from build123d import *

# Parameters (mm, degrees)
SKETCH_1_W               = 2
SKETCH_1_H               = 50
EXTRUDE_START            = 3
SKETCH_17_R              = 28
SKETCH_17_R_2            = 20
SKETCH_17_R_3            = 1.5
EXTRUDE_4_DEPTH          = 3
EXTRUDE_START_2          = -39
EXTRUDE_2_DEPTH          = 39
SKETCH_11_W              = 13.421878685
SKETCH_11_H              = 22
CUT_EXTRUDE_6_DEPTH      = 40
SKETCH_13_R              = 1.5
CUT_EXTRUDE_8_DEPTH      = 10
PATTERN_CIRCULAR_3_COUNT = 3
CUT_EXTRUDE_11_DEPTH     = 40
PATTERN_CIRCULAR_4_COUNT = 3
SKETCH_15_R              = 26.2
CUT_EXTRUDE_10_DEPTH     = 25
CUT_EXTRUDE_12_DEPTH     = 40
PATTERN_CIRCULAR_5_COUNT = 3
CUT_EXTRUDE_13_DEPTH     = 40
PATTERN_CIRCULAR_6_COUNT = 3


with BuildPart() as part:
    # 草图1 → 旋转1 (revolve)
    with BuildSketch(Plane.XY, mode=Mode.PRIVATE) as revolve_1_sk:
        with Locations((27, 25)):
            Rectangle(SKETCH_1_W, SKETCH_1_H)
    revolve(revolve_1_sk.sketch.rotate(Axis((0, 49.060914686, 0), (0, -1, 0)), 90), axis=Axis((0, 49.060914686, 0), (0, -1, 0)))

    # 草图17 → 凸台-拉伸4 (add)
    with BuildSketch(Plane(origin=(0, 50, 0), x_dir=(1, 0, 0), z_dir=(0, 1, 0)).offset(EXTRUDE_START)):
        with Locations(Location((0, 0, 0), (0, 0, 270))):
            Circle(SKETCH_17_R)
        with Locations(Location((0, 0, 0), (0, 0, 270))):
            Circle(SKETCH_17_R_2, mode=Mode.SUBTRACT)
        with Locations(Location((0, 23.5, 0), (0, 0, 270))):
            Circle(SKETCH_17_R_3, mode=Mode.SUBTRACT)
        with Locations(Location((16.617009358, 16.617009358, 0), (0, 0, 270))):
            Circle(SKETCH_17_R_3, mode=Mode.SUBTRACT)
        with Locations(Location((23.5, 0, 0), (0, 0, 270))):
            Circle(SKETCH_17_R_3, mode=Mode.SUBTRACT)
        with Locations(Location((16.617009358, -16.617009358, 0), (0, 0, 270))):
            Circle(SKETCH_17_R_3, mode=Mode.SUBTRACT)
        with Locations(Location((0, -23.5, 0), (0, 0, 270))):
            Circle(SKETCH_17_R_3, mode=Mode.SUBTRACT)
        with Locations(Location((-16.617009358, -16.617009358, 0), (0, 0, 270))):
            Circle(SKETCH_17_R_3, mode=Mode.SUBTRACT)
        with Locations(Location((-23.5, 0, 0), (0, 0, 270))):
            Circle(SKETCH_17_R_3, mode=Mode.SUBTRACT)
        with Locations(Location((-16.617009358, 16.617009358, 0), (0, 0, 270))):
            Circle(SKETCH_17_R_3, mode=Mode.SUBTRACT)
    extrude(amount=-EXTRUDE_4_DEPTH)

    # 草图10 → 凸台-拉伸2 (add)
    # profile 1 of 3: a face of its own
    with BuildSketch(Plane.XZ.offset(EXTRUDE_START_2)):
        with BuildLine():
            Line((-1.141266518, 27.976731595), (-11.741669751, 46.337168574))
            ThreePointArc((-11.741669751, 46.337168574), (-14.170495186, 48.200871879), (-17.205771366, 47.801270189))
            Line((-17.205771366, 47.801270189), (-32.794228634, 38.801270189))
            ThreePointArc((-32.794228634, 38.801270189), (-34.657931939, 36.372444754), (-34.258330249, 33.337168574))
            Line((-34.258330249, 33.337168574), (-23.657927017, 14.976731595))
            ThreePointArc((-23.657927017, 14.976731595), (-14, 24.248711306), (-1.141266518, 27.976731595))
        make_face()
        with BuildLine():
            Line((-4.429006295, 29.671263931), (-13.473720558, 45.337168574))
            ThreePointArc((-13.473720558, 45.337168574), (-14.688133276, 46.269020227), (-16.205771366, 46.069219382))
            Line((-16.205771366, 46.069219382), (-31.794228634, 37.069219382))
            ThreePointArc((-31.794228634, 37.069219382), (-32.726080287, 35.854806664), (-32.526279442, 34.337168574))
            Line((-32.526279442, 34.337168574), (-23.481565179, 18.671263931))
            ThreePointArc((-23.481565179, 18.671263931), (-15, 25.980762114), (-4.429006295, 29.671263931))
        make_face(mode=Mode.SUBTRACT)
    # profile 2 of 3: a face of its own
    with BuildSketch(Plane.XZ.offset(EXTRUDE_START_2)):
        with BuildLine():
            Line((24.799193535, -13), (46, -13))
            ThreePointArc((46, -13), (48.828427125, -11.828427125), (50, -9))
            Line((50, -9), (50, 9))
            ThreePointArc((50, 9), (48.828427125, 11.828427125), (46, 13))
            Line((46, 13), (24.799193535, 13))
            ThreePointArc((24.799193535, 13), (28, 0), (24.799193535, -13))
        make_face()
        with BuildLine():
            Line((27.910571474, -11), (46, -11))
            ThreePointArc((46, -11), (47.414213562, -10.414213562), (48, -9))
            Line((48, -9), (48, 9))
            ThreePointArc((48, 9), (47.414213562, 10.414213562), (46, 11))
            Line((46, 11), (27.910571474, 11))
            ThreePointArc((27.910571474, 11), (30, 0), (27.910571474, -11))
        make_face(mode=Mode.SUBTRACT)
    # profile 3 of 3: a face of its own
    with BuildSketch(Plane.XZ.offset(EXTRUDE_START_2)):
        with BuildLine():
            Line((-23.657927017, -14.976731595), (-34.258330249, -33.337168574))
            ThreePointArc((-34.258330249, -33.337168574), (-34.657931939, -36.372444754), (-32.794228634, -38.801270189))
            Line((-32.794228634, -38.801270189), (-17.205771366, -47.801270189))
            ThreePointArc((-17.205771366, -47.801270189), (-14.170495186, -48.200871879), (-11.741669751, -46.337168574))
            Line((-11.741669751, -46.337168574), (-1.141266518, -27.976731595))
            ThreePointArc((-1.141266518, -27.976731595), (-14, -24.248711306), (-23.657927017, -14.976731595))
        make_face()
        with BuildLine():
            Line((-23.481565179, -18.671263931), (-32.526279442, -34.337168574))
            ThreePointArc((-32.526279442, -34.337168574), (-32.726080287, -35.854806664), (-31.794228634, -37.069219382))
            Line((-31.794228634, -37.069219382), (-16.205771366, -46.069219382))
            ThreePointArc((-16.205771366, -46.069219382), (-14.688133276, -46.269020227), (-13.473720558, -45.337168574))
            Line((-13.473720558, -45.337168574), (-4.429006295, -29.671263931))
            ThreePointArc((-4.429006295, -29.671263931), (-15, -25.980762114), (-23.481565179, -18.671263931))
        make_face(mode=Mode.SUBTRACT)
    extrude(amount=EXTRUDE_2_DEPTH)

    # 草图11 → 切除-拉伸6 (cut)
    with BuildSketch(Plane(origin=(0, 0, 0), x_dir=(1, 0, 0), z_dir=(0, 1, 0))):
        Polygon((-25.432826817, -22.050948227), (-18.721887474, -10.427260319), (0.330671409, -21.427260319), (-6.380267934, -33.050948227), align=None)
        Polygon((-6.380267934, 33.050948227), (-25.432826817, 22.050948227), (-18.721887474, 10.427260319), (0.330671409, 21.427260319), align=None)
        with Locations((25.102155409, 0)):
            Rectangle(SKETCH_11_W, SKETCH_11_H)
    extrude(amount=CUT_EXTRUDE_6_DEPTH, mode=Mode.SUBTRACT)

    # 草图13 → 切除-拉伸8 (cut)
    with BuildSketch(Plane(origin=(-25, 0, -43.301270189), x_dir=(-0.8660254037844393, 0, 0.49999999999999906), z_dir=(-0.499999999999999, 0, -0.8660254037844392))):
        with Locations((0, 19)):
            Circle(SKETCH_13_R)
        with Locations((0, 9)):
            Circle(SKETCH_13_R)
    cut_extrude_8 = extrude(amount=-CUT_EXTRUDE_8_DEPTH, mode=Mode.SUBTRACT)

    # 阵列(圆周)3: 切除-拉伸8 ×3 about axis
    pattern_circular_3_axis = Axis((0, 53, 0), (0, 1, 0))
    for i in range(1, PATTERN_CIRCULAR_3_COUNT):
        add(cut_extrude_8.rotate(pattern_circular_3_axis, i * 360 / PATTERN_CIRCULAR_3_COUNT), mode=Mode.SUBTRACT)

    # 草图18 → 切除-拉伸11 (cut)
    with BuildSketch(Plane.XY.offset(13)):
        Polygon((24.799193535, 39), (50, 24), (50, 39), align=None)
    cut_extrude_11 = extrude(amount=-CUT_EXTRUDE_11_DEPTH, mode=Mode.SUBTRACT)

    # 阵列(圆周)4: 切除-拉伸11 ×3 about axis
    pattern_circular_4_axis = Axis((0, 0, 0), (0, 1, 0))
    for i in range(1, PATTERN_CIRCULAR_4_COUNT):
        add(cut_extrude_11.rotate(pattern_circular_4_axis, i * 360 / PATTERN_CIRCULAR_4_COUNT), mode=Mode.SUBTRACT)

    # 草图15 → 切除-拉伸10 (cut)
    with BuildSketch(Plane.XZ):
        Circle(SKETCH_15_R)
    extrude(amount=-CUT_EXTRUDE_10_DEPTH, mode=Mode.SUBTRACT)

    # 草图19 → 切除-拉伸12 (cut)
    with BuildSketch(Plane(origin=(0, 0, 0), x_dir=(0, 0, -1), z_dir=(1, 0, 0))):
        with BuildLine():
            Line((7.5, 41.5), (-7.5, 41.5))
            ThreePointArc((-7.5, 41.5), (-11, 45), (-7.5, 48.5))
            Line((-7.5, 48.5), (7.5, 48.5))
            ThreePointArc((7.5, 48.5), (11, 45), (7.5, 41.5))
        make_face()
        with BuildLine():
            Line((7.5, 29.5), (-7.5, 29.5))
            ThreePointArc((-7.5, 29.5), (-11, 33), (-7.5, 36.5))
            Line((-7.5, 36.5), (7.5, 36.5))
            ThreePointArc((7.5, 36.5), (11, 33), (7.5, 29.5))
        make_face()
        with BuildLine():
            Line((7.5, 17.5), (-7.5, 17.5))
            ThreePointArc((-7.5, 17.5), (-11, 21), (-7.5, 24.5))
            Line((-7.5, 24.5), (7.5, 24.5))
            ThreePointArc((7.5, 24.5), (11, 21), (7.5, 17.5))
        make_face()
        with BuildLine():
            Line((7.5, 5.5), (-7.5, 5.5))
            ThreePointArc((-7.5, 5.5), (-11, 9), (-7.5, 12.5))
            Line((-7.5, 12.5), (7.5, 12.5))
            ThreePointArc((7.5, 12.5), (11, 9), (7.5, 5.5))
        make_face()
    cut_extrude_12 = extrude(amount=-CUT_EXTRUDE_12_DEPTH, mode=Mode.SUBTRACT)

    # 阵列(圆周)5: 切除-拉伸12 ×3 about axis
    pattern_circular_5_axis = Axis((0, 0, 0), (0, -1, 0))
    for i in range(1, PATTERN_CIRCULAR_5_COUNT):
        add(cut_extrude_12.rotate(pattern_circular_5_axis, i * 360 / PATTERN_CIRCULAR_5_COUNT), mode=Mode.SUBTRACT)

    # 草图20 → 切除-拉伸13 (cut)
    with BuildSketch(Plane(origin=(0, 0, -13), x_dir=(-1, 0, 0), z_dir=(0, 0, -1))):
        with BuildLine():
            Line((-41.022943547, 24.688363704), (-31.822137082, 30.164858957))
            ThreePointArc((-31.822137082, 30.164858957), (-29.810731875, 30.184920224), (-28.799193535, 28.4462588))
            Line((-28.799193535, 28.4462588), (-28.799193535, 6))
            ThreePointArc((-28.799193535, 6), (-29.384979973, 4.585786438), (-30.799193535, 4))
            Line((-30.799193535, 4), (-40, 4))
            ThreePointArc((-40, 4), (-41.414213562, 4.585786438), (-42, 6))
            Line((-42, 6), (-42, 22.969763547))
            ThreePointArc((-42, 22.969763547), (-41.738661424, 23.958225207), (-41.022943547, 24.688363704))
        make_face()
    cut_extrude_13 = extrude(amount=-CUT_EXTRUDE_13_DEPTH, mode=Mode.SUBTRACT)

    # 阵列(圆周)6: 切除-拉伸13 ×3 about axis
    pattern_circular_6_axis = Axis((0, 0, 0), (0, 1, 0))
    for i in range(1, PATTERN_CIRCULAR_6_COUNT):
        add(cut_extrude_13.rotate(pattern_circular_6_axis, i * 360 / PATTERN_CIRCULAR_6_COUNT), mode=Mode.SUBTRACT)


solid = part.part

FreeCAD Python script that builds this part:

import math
import FreeCAD as App
import Part
import Sketcher
from FreeCAD import Vector
Q = App.Units.Quantity


def add_polygon(sketch, points):
    """Adds a closed chain of lines whose ends are joined by coincident constraints."""
    first, n = sketch.GeometryCount, len(points)
    for a, b in zip(points, points[1:] + points[:1]):
        sketch.addGeometry(Part.LineSegment(App.Vector(*a, 0), App.Vector(*b, 0)), False)
    for i in range(n):
        sketch.addConstraint(Sketcher.Constraint("Coincident", first + i, 2, first + (i + 1) % n, 1))

doc = App.newDocument("Part")
body = doc.addObject("PartDesign::Body", "Body")

# Sketch on XY plane
sketch1 = doc.addObject("Sketcher::SketchObject", "Sketch")
body.addObject(sketch1)
sketch1.AttachmentSupport = (doc.XY_Plane, [""])
sketch1.MapMode = "FlatFace"
add_polygon(sketch1, [(26, 50), (26, 0), (28, 0), (28, 50)])  # lines 0-3
sketch1.addConstraint([
    Sketcher.Constraint("Vertical", 0),
    Sketcher.Constraint("Horizontal", 1),
    Sketcher.Constraint("Vertical", 2),
    Sketcher.Constraint("Horizontal", 3),
    Sketcher.Constraint("PointOnObject", 0, 2, -1),
    Sketcher.Constraint("DistanceX", 1, 1, 1, 2, 2.0),
    Sketcher.Constraint("DistanceY", 0, 2, 0, 1, 50.0),
    Sketcher.Constraint("DistanceX", -1, 1, 0, 2, 26.0),
])
revolution = doc.addObject("PartDesign::Revolution", "Revolution")
body.addObject(revolution)
revolution.Profile = sketch1
revolution.ReferenceAxis = (sketch1, ["V_Axis"])
revolution.Angle = 360

# Sketch on XZ plane
sketch2 = doc.addObject("Sketcher::SketchObject", "Sketch001")
body.addObject(sketch2)
sketch2.AttachmentSupport = (doc.XZ_Plane, [""])
sketch2.MapMode = "FlatFace"
sketch2.AttachmentOffset = App.Placement(Vector(0, 0, -53), App.Rotation())
sketch2.addGeometry([
    Part.Circle(Vector(0, 0, 0), Vector(0, 0, 1), 28),  # 0
    Part.Circle(Vector(-16.617009, -16.617009, 0), Vector(0, 0, 1), 1.5),  # 1
    Part.Circle(Vector(0, -23.5, 0), Vector(0, 0, 1), 1.5),  # 2
    Part.Circle(Vector(-23.5, 0, 0), Vector(0, 0, 1), 1.5),  # 3
    Part.Circle(Vector(-16.617009, 16.617009, 0), Vector(0, 0, 1), 1.5),  # 4
    Part.Circle(Vector(16.617009, -16.617009, 0), Vector(0, 0, 1), 1.5),  # 5
    Part.Circle(Vector(23.5, 0, 0), Vector(0, 0, 1), 1.5),  # 6
    Part.Circle(Vector(0, 0, 0), Vector(0, 0, 1), 20),  # 7
    Part.Circle(Vector(0, 23.5, 0), Vector(0, 0, 1), 1.5),  # 8
    Part.Circle(Vector(16.617009, 16.617009, 0), Vector(0, 0, 1), 1.5),  # 9
], False)
sketch2.addConstraint([
    Sketcher.Constraint("Coincident", 0, 3, -1, 1),
    Sketcher.Constraint("Coincident", 7, 3, -1, 1),
    Sketcher.Constraint("Equal", 1, 2),
    Sketcher.Constraint("Equal", 2, 3),
    Sketcher.Constraint("Equal", 3, 4),
    Sketcher.Constraint("Equal", 4, 5),
    Sketcher.Constraint("Equal", 5, 6),
    Sketcher.Constraint("Equal", 6, 8),
    Sketcher.Constraint("Equal", 8, 9),
    Sketcher.Constraint("Symmetric", 4, 3, 5, 3, -1, 1),
    Sketcher.Constraint("Symmetric", 3, 3, 6, 3, -1, 1),
    Sketcher.Constraint("Symmetric", 2, 3, 8, 3, -1, 1),
    Sketcher.Constraint("Symmetric", 1, 3, 9, 3, -1, 1),
    Sketcher.Constraint("Symmetric", 1, 3, 5, 3, -2),
    Sketcher.Constraint("PointOnObject", 2, 3, -2),
    Sketcher.Constraint("PointOnObject", 3, 3, -1),
    Sketcher.Constraint("Diameter", 0, 56.0),
    Sketcher.Constraint("Diameter", 1, 3.0),
    Sketcher.Constraint("Diameter", 7, 40.0),
    Sketcher.Constraint("DistanceY", 2, 3, -1, 1, 23.5),
    Sketcher.Constraint("DistanceX", 3, 3, -1, 1, 23.5),
    Sketcher.Constraint("DistanceX", 1, 3, -1, 1, 16.617009),
    Sketcher.Constraint("DistanceY", 1, 3, -1, 1, 16.617009),
])
pad1 = doc.addObject("PartDesign::Pad", "Pad")
body.addObject(pad1)
pad1.Profile = sketch2
pad1.Length = 3

# Sketch on XZ plane
sketch3 = doc.addObject("Sketcher::SketchObject", "Sketch002")
body.addObject(sketch3)
sketch3.AttachmentSupport = (doc.XZ_Plane, [""])
sketch3.MapMode = "FlatFace"
sketch3.AttachmentOffset = App.Placement(Vector(0, 0, -39), App.Rotation())
sketch3.addGeometry([
    Part.LineSegment(Vector(-1.141267, 27.976732, 0), Vector(-11.74167, 46.337169, 0)),  # 0
    Part.ArcOfCircle(Part.Circle(Vector(-15.205771, 44.337169, 0), Vector(0, 0, 1), 4), math.radians(30), math.radians(120)),  # 1
    Part.LineSegment(Vector(-17.205771, 47.80127, 0), Vector(-32.794229, 38.80127, 0)),  # 2
    Part.ArcOfCircle(Part.Circle(Vector(-30.794229, 35.337169, 0), Vector(0, 0, 1), 4), math.radians(120), math.radians(210)),  # 3
    Part.LineSegment(Vector(-34.25833, 33.337169, 0), Vector(-23.657927, 14.976732, 0)),  # 4
    Part.ArcOfCircle(Part.Circle(Vector(0, 0, 0), Vector(0, 0, 1), 28), math.radians(92.335996), math.radians(147.664004)),  # 5
    Part.LineSegment(Vector(-13.473721, 45.337169, 0), Vector(-4.429006, 29.671264, 0)),  # 6
    Part.ArcOfCircle(Part.Circle(Vector(0, 0, 0), Vector(0, 0, 1), 30), math.radians(98.489812), math.radians(141.510188)),  # 7
    Part.LineSegment(Vector(-23.481565, 18.671264, 0), Vector(-32.526279, 34.337169, 0)),  # 8
    Part.ArcOfCircle(Part.Circle(Vector(-30.794229, 35.337169, 0), Vector(0, 0, 1), 2), math.radians(120), math.radians(210)),  # 9
    Part.LineSegment(Vector(-31.794229, 37.069219, 0), Vector(-16.205771, 46.069219, 0)),  # 10
    Part.ArcOfCircle(Part.Circle(Vector(-15.205771, 44.337169, 0), Vector(0, 0, 1), 2), math.radians(30), math.radians(120)),  # 11
    Part.LineSegment(Vector(24.799194, -13, 0), Vector(46, -13, 0)),  # 12
    Part.ArcOfCircle(Part.Circle(Vector(46, -9, 0), Vector(0, 0, 1), 4), math.radians(-90), math.radians(0)),  # 13
    Part.LineSegment(Vector(50, -9, 0), Vector(50, 9, 0)),  # 14
    Part.ArcOfCircle(Part.Circle(Vector(46, 9, 0), Vector(0, 0, 1), 4), math.radians(0), math.radians(90)),  # 15
    Part.LineSegment(Vector(46, 13, 0), Vector(24.799194, 13, 0)),  # 16
    Part.ArcOfCircle(Part.Circle(Vector(0, 0, 0), Vector(0, 0, 1), 28), math.radians(-27.664004), math.radians(27.664004)),  # 17
    Part.LineSegment(Vector(46, -11, 0), Vector(27.910571, -11, 0)),  # 18
    Part.ArcOfCircle(Part.Circle(Vector(0, 0, 0), Vector(0, 0, 1), 30), math.radians(-21.510188), math.radians(21.510188)),  # 19
    Part.LineSegment(Vector(27.910571, 11, 0), Vector(46, 11, 0)),  # 20
    Part.ArcOfCircle(Part.Circle(Vector(46, 9, 0), Vector(0, 0, 1), 2), math.radians(0), math.radians(90)),  # 21
    Part.LineSegment(Vector(48, 9, 0), Vector(48, -9, 0)),  # 22
    Part.ArcOfCircle(Part.Circle(Vector(46, -9, 0), Vector(0, 0, 1), 2), math.radians(-90), math.radians(0)),  # 23
    Part.LineSegment(Vector(-23.657927, -14.976732, 0), Vector(-34.25833, -33.337169, 0)),  # 24
    Part.ArcOfCircle(Part.Circle(Vector(-30.794229, -35.337169, 0), Vector(0, 0, 1), 4), math.radians(150), math.radians(240)),  # 25
    Part.LineSegment(Vector(-32.794229, -38.80127, 0), Vector(-17.205771, -47.80127, 0)),  # 26
    Part.ArcOfCircle(Part.Circle(Vector(-15.205771, -44.337169, 0), Vector(0, 0, 1), 4), math.radians(-120), math.radians(-30)),  # 27
    Part.LineSegment(Vector(-11.74167, -46.337169, 0), Vector(-1.141267, -27.976732, 0)),  # 28
    Part.ArcOfCircle(Part.Circle(Vector(0, 0, 0), Vector(0, 0, 1), 28), math.radians(-147.664004), math.radians(-92.335996)),  # 29
    Part.LineSegment(Vector(-32.526279, -34.337169, 0), Vector(-23.481565, -18.671264, 0)),  # 30
    Part.ArcOfCircle(Part.Circle(Vector(0, 0, 0), Vector(0, 0, 1), 30), math.radians(-141.510188), math.radians(-98.489812)),  # 31
    Part.LineSegment(Vector(-4.429006, -29.671264, 0), Vector(-13.473721, -45.337169, 0)),  # 32
    Part.ArcOfCircle(Part.Circle(Vector(-15.205771, -44.337169, 0), Vector(0, 0, 1), 2), math.radians(-120), math.radians(-30)),  # 33
    Part.LineSegment(Vector(-16.205771, -46.069219, 0), Vector(-31.794229, -37.069219, 0)),  # 34
    Part.ArcOfCircle(Part.Circle(Vector(-30.794229, -35.337169, 0), Vector(0, 0, 1), 2), math.radians(150), math.radians(240)),  # 35
], False)
sketch3.addConstraint([
    Sketcher.Constraint("Tangent", 0, 2, 1, 1),
    Sketcher.Constraint("Tangent", 1, 2, 2, 1),
    Sketcher.Constraint("Tangent", 2, 2, 3, 1),
    Sketcher.Constraint("Tangent", 3, 2, 4, 1),
    Sketcher.Constraint("Coincident", 4, 2, 5, 2),
    Sketcher.Constraint("Coincident", 5, 1, 0, 1),
    Sketcher.Constraint("Coincident", 6, 2, 7, 1),
    Sketcher.Constraint("Coincident", 7, 2, 8, 1),
    Sketcher.Constraint("Tangent", 8, 2, 9, 2),
    Sketcher.Constraint("Tangent", 9, 1, 10, 1),
    Sketcher.Constraint("Tangent", 10, 2, 11, 2),
    Sketcher.Constraint("Tangent", 11, 1, 6, 1),
    Sketcher.Constraint("Tangent", 12, 2, 13, 1),
    Sketcher.Constraint("Tangent", 13, 2, 14, 1),
    Sketcher.Constraint("Tangent", 14, 2, 15, 1),
    Sketcher.Constraint("Tangent", 15, 2, 16, 1),
    Sketcher.Constraint("Coincident", 16, 2, 17, 2),
    Sketcher.Constraint("Coincident", 17, 1, 12, 1),
    Sketcher.Constraint("Coincident", 18, 2, 19, 1),
    Sketcher.Constraint("Coincident", 19, 2, 20, 1),
    Sketcher.Constraint("Tangent", 20, 2, 21, 2),
    Sketcher.Constraint("Tangent", 21, 1, 22, 1),
    Sketcher.Constraint("Tangent", 22, 2, 23, 2),
    Sketcher.Constraint("Tangent", 23, 1, 18, 1),
    Sketcher.Constraint("Tangent", 24, 2, 25, 1),
    Sketcher.Constraint("Tangent", 25, 2, 26, 1),
    Sketcher.Constraint("Tangent", 26, 2, 27, 1),
    Sketcher.Constraint("Tangent", 27, 2, 28, 1),
    Sketcher.Constraint("Coincident", 28, 2, 29, 2),
    Sketcher.Constraint("Coincident", 29, 1, 24, 1),
    Sketcher.Constraint("Coincident", 30, 2, 31, 1),
    Sketcher.Constraint("Coincident", 31, 2, 32, 1),
    Sketcher.Constraint("Tangent", 32, 2, 33, 2),
    Sketcher.Constraint("Tangent", 33, 1, 34, 1),
    Sketcher.Constraint("Tangent", 34, 2, 35, 2),
    Sketcher.Constraint("Tangent", 35, 1, 30, 1),
    Sketcher.Constraint("Horizontal", 12),
    Sketcher.Constraint("Vertical", 14),
    Sketcher.Constraint("Horizontal", 16),
    Sketcher.Constraint("Horizontal", 18),
    Sketcher.Constraint("Horizontal", 20),
    Sketcher.Constraint("Vertical", 22),
    Sketcher.Constraint("Coincident", 5, 3, -1, 1),
    Sketcher.Constraint("Coincident", 7, 3, -1, 1),
    Sketcher.Constraint("Coincident", 17, 3, -1, 1),
    Sketcher.Constraint("Coincident", 19, 3, -1, 1),
    Sketcher.Constraint("Coincident", 29, 3, -1, 1),
    Sketcher.Constraint("Coincident", 31, 3, -1, 1),
    Sketcher.Constraint("Coincident", 9, 3, 3, 3),
    Sketcher.Constraint("Coincident", 11, 3, 1, 3),
    Sketcher.Constraint("Coincident", 21, 3, 15, 3),
    Sketcher.Constraint("Coincident", 23, 3, 13, 3),
    Sketcher.Constraint("Coincident", 33, 3, 27, 3),
    Sketcher.Constraint("Coincident", 35, 3, 25, 3),
    Sketcher.Constraint("Equal", 1, 3),
    Sketcher.Constraint("Equal", 9, 11),
    Sketcher.Constraint("Equal", 3, 13),
    Sketcher.Constraint("Equal", 13, 15),
    Sketcher.Constraint("Equal", 5, 17),
    Sketcher.Constraint("Equal", 7, 19),
    Sketcher.Constraint("Equal", 11, 21),
    Sketcher.Constraint("Equal", 15, 25),
    Sketcher.Constraint("Equal", 25, 27),
    Sketcher.Constraint("Equal", 17, 29),
    Sketcher.Constraint("Equal", 19, 31),
    Sketcher.Constraint("Equal", 23, 33),
    Sketcher.Constraint("Equal", 33, 35),
    Sketcher.Constraint("Symmetric", 3, 3, 25, 3, -1),
    Sketcher.Constraint("Symmetric", 1, 3, 27, 3, -1),
    Sketcher.Constraint("Perpendicular", 0, 2),
    Sketcher.Constraint("Perpendicular", 2, 4),
    Sketcher.Constraint("Parallel", 4, 6),
    Sketcher.Constraint("Parallel", 6, 8),
    Sketcher.Constraint("Perpendicular", 24, 26),
    Sketcher.Constraint("Perpendicular", 26, 28),
    Sketcher.Constraint("Parallel", 28, 30),
    Sketcher.Constraint("Parallel", 30, 32),
    Sketcher.Constraint("Vertical", 16, 2, 17, 1),
    Sketcher.Constraint("Equal", 0, 4),
    Sketcher.Constraint("Radius", 1, 4.0),
    Sketcher.Constraint("Radius", 5, 28.0),
    Sketcher.Constraint("Radius", 7, 30.0),
    Sketcher.Constraint("Radius", 9, 2.0),
    Sketcher.Constraint("DistanceY", 14, 1, 14, 2, 18.0),
    Sketcher.Constraint("Angle", 0, Q("120 deg")),
    Sketcher.Constraint("Distance", 2, 18.0),
    Sketcher.Constraint("DistanceX", -1, 1, 13, 3, 46.0),
    Sketcher.Constraint("DistanceX", 3, 3, 4, 2, 7.136302),
])
pad2 = doc.addObject("PartDesign::Pad", "Pad001")
body.addObject(pad2)
pad2.Profile = sketch3
pad2.Length = 39

# Sketch on XZ plane
sketch4 = doc.addObject("Sketcher::SketchObject", "Sketch003")
body.addObject(sketch4)
sketch4.AttachmentSupport = (doc.XZ_Plane, [""])
sketch4.MapMode = "FlatFace"
add_polygon(sketch4, [(-18.721887, 10.42726), (-25.432827, 22.050948), (-6.380268, 33.050948), (0.330671, 21.42726)])  # lines 0-3
add_polygon(sketch4, [(-6.380268, -33.050948), (-25.432827, -22.050948), (-18.721887, -10.42726), (0.330671, -21.42726)])  # lines 4-7
add_polygon(sketch4, [(18.391216, -11), (18.391216, 11), (31.813095, 11), (31.813095, -11)])  # lines 8-11
sketch4.addConstraint([
    Sketcher.Constraint("Vertical", 8),
    Sketcher.Constraint("Horizontal", 9),
    Sketcher.Constraint("Vertical", 10),
    Sketcher.Constraint("Horizontal", 11),
    Sketcher.Constraint("Symmetric", 0, 2, 4, 2, -1),
    Sketcher.Constraint("Symmetric", 3, 2, 5, 2, -1),
    Sketcher.Constraint("Symmetric", 2, 2, 6, 2, -1),
    Sketcher.Constraint("Symmetric", 1, 2, 7, 2, -1),
    Sketcher.Constraint("Perpendicular", 0, 1),
    Sketcher.Constraint("Perpendicular", 1, 2),
    Sketcher.Constraint("Perpendicular", 2, 3),
    Sketcher.Constraint("DistanceY", 8, 1, 8, 2, 22.0),
    Sketcher.Constraint("Angle", 0, Q("120 deg")),
    Sketcher.Constraint("Distance", 1, 22.0),
    Sketcher.Constraint("DistanceY", -1, 1, 8, 2, 11.0),
    Sketcher.Constraint("DistanceX", 9, 1, 9, 2, 13.421879),
    Sketcher.Constraint("DistanceX", 0, 2, 2, 2, 25.763498),
    Sketcher.Constraint("DistanceY", -1, 1, 0, 2, 22.050948),
    Sketcher.Constraint("DistanceX", -1, 1, 2, 2, 0.330671),
    Sketcher.Constraint("DistanceX", -1, 1, 8, 2, 18.391216),
])
pocket1 = doc.addObject("PartDesign::Pocket", "Pocket")
body.addObject(pocket1)
pocket1.Profile = sketch4
pocket1.Length = 40

# Sketch on an angled plane
sketch5 = doc.addObject("Sketcher::SketchObject", "Sketch004")
body.addObject(sketch5)
sketch5.Placement = App.Placement(Vector(-25, 0, -43.30127), App.Rotation(Vector(-0.866025404, 0, 0.5), Vector(0, 1, 0), Vector(-0.5, 0, -0.866025404), "ZXY"))
sketch5.addGeometry([
    Part.Circle(Vector(0, 19, 0), Vector(0, 0, 1), 1.5),
    Part.Circle(Vector(0, 9, 0), Vector(0, 0, 1), 1.5),
], False)
sketch5.addConstraint([
    Sketcher.Constraint("Equal", 0, 1),
    Sketcher.Constraint("PointOnObject", 0, 3, -2),
    Sketcher.Constraint("PointOnObject", 1, 3, -2),
    Sketcher.Constraint("Diameter", 0, 3.0),
    Sketcher.Constraint("DistanceY", -1, 1, 0, 3, 19.0),
    Sketcher.Constraint("DistanceY", -1, 1, 1, 3, 9.0),
])
pocket2 = doc.addObject("PartDesign::Pocket", "Pocket001")
body.addObject(pocket2)
pocket2.Profile = sketch5
pocket2.Length = 10
doc.recompute()

polarpattern = doc.addObject("PartDesign::PolarPattern", "PolarPattern")
body.addObject(polarpattern)
polarpattern.Originals = [pocket2]
polarpattern.Axis = (doc.Y_Axis, [""])
polarpattern.Angle = 360
polarpattern.Occurrences = 3
body.Tip = polarpattern

# Sketch on XY plane
sketch6 = doc.addObject("Sketcher::SketchObject", "Sketch005")
body.addObject(sketch6)
sketch6.AttachmentSupport = (doc.XY_Plane, [""])
sketch6.MapMode = "FlatFace"
sketch6.AttachmentOffset = App.Placement(Vector(0, 0, 13), App.Rotation())
add_polygon(sketch6, [(24.799194, 39), (50, 24), (50, 39)])  # lines 0-2
sketch6.addConstraint([
    Sketcher.Constraint("Vertical", 1),
    Sketcher.Constraint("Horizontal", 2),
    Sketcher.Constraint("DistanceY", 1, 1, 1, 2, 15.0),
    Sketcher.Constraint("DistanceX", -1, 1, 0, 2, 50.0),
    Sketcher.Constraint("DistanceY", -1, 1, 0, 2, 24.0),
    Sketcher.Constraint("Distance", 0, 29.327132),
])
pocket3 = doc.addObject("PartDesign::Pocket", "Pocket002")
body.addObject(pocket3)
pocket3.Profile = sketch6
pocket3.Length = 40
doc.recompute()

polarpattern2 = doc.addObject("PartDesign::PolarPattern", "PolarPattern001")
body.addObject(polarpattern2)
polarpattern2.Originals = [pocket3]
polarpattern2.Axis = (doc.Y_Axis, [""])
polarpattern2.Angle = 360
polarpattern2.Occurrences = 3
body.Tip = polarpattern2

# Sketch on XZ plane
sketch7 = doc.addObject("Sketcher::SketchObject", "Sketch006")
body.addObject(sketch7)
sketch7.AttachmentSupport = (doc.XZ_Plane, [""])
sketch7.MapMode = "FlatFace"
sketch7.addGeometry(Part.Circle(Vector(0, 0, 0), Vector(0, 0, 1), 26.2), False)
sketch7.addConstraint([
    Sketcher.Constraint("Coincident", 0, 3, -1, 1),
    Sketcher.Constraint("Diameter", 0, 52.4),
])
pocket4 = doc.addObject("PartDesign::Pocket", "Pocket003")
body.addObject(pocket4)
pocket4.Profile = sketch7
pocket4.Length = 25

# Sketch on YZ plane
sketch8 = doc.addObject("Sketcher::SketchObject", "Sketch007")
body.addObject(sketch8)
sketch8.AttachmentSupport = (doc.YZ_Plane, [""])
sketch8.MapMode = "FlatFace"
sketch8.addGeometry([
    Part.LineSegment(Vector(41.5, 7.5, 0), Vector(41.5, -7.5, 0)),  # 0
    Part.ArcOfCircle(Part.Circle(Vector(45, -7.5, 0), Vector(0, 0, 1), 3.5), math.radians(180), math.radians(360)),  # 1
    Part.LineSegment(Vector(48.5, -7.5, 0), Vector(48.5, 7.5, 0)),  # 2
    Part.ArcOfCircle(Part.Circle(Vector(45, 7.5, 0), Vector(0, 0, 1), 3.5), math.radians(0), math.radians(180)),  # 3
    Part.LineSegment(Vector(29.5, 7.5, 0), Vector(29.5, -7.5, 0)),  # 4
    Part.ArcOfCircle(Part.Circle(Vector(33, -7.5, 0), Vector(0, 0, 1), 3.5), math.radians(180), math.radians(360)),  # 5
    Part.LineSegment(Vector(36.5, -7.5, 0), Vector(36.5, 7.5, 0)),  # 6
    Part.ArcOfCircle(Part.Circle(Vector(33, 7.5, 0), Vector(0, 0, 1), 3.5), math.radians(0), math.radians(180)),  # 7
    Part.LineSegment(Vector(17.5, 7.5, 0), Vector(17.5, -7.5, 0)),  # 8
    Part.ArcOfCircle(Part.Circle(Vector(21, -7.5, 0), Vector(0, 0, 1), 3.5), math.radians(180), math.radians(360)),  # 9
    Part.LineSegment(Vector(24.5, -7.5, 0), Vector(24.5, 7.5, 0)),  # 10
    Part.ArcOfCircle(Part.Circle(Vector(21, 7.5, 0), Vector(0, 0, 1), 3.5), math.radians(0), math.radians(180)),  # 11
    Part.LineSegment(Vector(5.5, 7.5, 0), Vector(5.5, -7.5, 0)),  # 12
    Part.ArcOfCircle(Part.Circle(Vector(9, -7.5, 0), Vector(0, 0, 1), 3.5), math.radians(180), math.radians(360)),  # 13
    Part.LineSegment(Vector(12.5, -7.5, 0), Vector(12.5, 7.5, 0)),  # 14
    Part.ArcOfCircle(Part.Circle(Vector(9, 7.5, 0), Vector(0, 0, 1), 3.5), math.radians(0), math.radians(180)),  # 15
], False)
sketch8.addConstraint([
    Sketcher.Constraint("Tangent", 0, 2, 1, 1),
    Sketcher.Constraint("Tangent", 1, 2, 2, 1),
    Sketcher.Constraint("Tangent", 2, 2, 3, 1),
    Sketcher.Constraint("Tangent", 3, 2, 0, 1),
    Sketcher.Constraint("Tangent", 4, 2, 5, 1),
    Sketcher.Constraint("Tangent", 5, 2, 6, 1),
    Sketcher.Constraint("Tangent", 6, 2, 7, 1),
    Sketcher.Constraint("Tangent", 7, 2, 4, 1),
    Sketcher.Constraint("Tangent", 8, 2, 9, 1),
    Sketcher.Constraint("Tangent", 9, 2, 10, 1),
    Sketcher.Constraint("Tangent", 10, 2, 11, 1),
    Sketcher.Constraint("Tangent", 11, 2, 8, 1),
    Sketcher.Constraint("Tangent", 12, 2, 13, 1),
    Sketcher.Constraint("Tangent", 13, 2, 14, 1),
    Sketcher.Constraint("Tangent", 14, 2, 15, 1),
    Sketcher.Constraint("Tangent", 15, 2, 12, 1),
    Sketcher.Constraint("Vertical", 0),
    Sketcher.Constraint("Vertical", 2),
    Sketcher.Constraint("Vertical", 4),
    Sketcher.Constraint("Vertical", 6),
    Sketcher.Constraint("Vertical", 8),
    Sketcher.Constraint("Vertical", 10),
    Sketcher.Constraint("Vertical", 12),
    Sketcher.Constraint("Vertical", 14),
    Sketcher.Constraint("Equal", 3, 5),
    Sketcher.Constraint("Equal", 7, 9),
    Sketcher.Constraint("Equal", 11, 13),
    Sketcher.Constraint("Horizontal", 1, 3, 5, 3),
    Sketcher.Constraint("Horizontal", 3, 3, 7, 3),
    Sketcher.Constraint("Horizontal", 5, 3, 9, 3),
    Sketcher.Constraint("Horizontal", 7, 3, 11, 3),
    Sketcher.Constraint("Horizontal", 9, 3, 13, 3),
    Sketcher.Constraint("Horizontal", 11, 3, 15, 3),
    Sketcher.Constraint("Radius", 1, 3.5),
    Sketcher.Constraint("DistanceY", 0, 2, 0, 1, 15.0),
    Sketcher.Constraint("DistanceX", -1, 1, 1, 3, 45.0),
    Sketcher.Constraint("DistanceX", -1, 1, 5, 3, 33.0),
    Sketcher.Constraint("DistanceX", -1, 1, 9, 3, 21.0),
    Sketcher.Constraint("DistanceX", -1, 1, 13, 3, 9.0),
    Sketcher.Constraint("DistanceY", 1, 3, -1, 1, 7.5),
])
pocket5 = doc.addObject("PartDesign::Pocket", "Pocket004")
body.addObject(pocket5)
pocket5.Profile = sketch8
pocket5.Length = 40
doc.recompute()

polarpattern3 = doc.addObject("PartDesign::PolarPattern", "PolarPattern002")
body.addObject(polarpattern3)
polarpattern3.Originals = [pocket5]
polarpattern3.Axis = (doc.Y_Axis, [""])
polarpattern3.Angle = 360
polarpattern3.Occurrences = 3
body.Tip = polarpattern3

# Sketch on XY plane
sketch9 = doc.addObject("Sketcher::SketchObject", "Sketch008")
body.addObject(sketch9)
sketch9.AttachmentSupport = (doc.XY_Plane, [""])
sketch9.MapMode = "FlatFace"
sketch9.AttachmentOffset = App.Placement(Vector(0, 0, -13), App.Rotation())
sketch9.addGeometry([
    Part.LineSegment(Vector(31.822137, 30.164859, 0), Vector(41.022944, 24.688364, 0)),  # 0
    Part.ArcOfCircle(Part.Circle(Vector(40, 22.969764, 0), Vector(0, 0, 1), 2), math.radians(0), math.radians(59.238086)),  # 1
    Part.LineSegment(Vector(42, 22.969764, 0), Vector(42, 6, 0)),  # 2
    Part.ArcOfCircle(Part.Circle(Vector(40, 6, 0), Vector(0, 0, 1), 2), math.radians(-90), math.radians(0)),  # 3
    Part.LineSegment(Vector(40, 4, 0), Vector(30.799194, 4, 0)),  # 4
    Part.ArcOfCircle(Part.Circle(Vector(30.799194, 6, 0), Vector(0, 0, 1), 2), math.radians(-180), math.radians(-90)),  # 5
    Part.LineSegment(Vector(28.799194, 6, 0), Vector(28.799194, 28.446259, 0)),  # 6
    Part.ArcOfCircle(Part.Circle(Vector(30.799194, 28.446259, 0), Vector(0, 0, 1), 2), math.radians(59.238086), math.radians(180)),  # 7
], False)
sketch9.addConstraint([
    Sketcher.Constraint("Tangent", 0, 2, 1, 2),
    Sketcher.Constraint("Tangent", 1, 1, 2, 1),
    Sketcher.Constraint("Tangent", 2, 2, 3, 2),
    Sketcher.Constraint("Tangent", 3, 1, 4, 1),
    Sketcher.Constraint("Tangent", 4, 2, 5, 2),
    Sketcher.Constraint("Tangent", 5, 1, 6, 1),
    Sketcher.Constraint("Tangent", 6, 2, 7, 2),
    Sketcher.Constraint("Tangent", 7, 1, 0, 1),
    Sketcher.Constraint("Vertical", 2),
    Sketcher.Constraint("Horizontal", 4),
    Sketcher.Constraint("Vertical", 6),
    Sketcher.Constraint("Equal", 1, 3),
    Sketcher.Constraint("Equal", 3, 5),
    Sketcher.Constraint("Equal", 5, 7),
    Sketcher.Constraint("Radius", 1, 2.0),
    Sketcher.Constraint("DistanceX", -1, 1, 1, 3, 40.0),
    Sketcher.Constraint("DistanceY", -1, 1, 3, 3, 6.0),
    Sketcher.Constraint("DistanceY", 6, 1, 6, 2, 22.446259),
    Sketcher.Constraint("DistanceY", 1, 3, 0, 2, 1.7186),
    Sketcher.Constraint("DistanceX", 4, 2, 4, 1, 9.200806),
])
pocket6 = doc.addObject("PartDesign::Pocket", "Pocket005")
body.addObject(pocket6)
pocket6.Profile = sketch9
pocket6.Length = 40
pocket6.Reversed = True
doc.recompute()

polarpattern4 = doc.addObject("PartDesign::PolarPattern", "PolarPattern003")
body.addObject(polarpattern4)
polarpattern4.Originals = [pocket6]
polarpattern4.Axis = (doc.Y_Axis, [""])
polarpattern4.Angle = 360
polarpattern4.Occurrences = 3
body.Tip = polarpattern4

doc.recompute()
